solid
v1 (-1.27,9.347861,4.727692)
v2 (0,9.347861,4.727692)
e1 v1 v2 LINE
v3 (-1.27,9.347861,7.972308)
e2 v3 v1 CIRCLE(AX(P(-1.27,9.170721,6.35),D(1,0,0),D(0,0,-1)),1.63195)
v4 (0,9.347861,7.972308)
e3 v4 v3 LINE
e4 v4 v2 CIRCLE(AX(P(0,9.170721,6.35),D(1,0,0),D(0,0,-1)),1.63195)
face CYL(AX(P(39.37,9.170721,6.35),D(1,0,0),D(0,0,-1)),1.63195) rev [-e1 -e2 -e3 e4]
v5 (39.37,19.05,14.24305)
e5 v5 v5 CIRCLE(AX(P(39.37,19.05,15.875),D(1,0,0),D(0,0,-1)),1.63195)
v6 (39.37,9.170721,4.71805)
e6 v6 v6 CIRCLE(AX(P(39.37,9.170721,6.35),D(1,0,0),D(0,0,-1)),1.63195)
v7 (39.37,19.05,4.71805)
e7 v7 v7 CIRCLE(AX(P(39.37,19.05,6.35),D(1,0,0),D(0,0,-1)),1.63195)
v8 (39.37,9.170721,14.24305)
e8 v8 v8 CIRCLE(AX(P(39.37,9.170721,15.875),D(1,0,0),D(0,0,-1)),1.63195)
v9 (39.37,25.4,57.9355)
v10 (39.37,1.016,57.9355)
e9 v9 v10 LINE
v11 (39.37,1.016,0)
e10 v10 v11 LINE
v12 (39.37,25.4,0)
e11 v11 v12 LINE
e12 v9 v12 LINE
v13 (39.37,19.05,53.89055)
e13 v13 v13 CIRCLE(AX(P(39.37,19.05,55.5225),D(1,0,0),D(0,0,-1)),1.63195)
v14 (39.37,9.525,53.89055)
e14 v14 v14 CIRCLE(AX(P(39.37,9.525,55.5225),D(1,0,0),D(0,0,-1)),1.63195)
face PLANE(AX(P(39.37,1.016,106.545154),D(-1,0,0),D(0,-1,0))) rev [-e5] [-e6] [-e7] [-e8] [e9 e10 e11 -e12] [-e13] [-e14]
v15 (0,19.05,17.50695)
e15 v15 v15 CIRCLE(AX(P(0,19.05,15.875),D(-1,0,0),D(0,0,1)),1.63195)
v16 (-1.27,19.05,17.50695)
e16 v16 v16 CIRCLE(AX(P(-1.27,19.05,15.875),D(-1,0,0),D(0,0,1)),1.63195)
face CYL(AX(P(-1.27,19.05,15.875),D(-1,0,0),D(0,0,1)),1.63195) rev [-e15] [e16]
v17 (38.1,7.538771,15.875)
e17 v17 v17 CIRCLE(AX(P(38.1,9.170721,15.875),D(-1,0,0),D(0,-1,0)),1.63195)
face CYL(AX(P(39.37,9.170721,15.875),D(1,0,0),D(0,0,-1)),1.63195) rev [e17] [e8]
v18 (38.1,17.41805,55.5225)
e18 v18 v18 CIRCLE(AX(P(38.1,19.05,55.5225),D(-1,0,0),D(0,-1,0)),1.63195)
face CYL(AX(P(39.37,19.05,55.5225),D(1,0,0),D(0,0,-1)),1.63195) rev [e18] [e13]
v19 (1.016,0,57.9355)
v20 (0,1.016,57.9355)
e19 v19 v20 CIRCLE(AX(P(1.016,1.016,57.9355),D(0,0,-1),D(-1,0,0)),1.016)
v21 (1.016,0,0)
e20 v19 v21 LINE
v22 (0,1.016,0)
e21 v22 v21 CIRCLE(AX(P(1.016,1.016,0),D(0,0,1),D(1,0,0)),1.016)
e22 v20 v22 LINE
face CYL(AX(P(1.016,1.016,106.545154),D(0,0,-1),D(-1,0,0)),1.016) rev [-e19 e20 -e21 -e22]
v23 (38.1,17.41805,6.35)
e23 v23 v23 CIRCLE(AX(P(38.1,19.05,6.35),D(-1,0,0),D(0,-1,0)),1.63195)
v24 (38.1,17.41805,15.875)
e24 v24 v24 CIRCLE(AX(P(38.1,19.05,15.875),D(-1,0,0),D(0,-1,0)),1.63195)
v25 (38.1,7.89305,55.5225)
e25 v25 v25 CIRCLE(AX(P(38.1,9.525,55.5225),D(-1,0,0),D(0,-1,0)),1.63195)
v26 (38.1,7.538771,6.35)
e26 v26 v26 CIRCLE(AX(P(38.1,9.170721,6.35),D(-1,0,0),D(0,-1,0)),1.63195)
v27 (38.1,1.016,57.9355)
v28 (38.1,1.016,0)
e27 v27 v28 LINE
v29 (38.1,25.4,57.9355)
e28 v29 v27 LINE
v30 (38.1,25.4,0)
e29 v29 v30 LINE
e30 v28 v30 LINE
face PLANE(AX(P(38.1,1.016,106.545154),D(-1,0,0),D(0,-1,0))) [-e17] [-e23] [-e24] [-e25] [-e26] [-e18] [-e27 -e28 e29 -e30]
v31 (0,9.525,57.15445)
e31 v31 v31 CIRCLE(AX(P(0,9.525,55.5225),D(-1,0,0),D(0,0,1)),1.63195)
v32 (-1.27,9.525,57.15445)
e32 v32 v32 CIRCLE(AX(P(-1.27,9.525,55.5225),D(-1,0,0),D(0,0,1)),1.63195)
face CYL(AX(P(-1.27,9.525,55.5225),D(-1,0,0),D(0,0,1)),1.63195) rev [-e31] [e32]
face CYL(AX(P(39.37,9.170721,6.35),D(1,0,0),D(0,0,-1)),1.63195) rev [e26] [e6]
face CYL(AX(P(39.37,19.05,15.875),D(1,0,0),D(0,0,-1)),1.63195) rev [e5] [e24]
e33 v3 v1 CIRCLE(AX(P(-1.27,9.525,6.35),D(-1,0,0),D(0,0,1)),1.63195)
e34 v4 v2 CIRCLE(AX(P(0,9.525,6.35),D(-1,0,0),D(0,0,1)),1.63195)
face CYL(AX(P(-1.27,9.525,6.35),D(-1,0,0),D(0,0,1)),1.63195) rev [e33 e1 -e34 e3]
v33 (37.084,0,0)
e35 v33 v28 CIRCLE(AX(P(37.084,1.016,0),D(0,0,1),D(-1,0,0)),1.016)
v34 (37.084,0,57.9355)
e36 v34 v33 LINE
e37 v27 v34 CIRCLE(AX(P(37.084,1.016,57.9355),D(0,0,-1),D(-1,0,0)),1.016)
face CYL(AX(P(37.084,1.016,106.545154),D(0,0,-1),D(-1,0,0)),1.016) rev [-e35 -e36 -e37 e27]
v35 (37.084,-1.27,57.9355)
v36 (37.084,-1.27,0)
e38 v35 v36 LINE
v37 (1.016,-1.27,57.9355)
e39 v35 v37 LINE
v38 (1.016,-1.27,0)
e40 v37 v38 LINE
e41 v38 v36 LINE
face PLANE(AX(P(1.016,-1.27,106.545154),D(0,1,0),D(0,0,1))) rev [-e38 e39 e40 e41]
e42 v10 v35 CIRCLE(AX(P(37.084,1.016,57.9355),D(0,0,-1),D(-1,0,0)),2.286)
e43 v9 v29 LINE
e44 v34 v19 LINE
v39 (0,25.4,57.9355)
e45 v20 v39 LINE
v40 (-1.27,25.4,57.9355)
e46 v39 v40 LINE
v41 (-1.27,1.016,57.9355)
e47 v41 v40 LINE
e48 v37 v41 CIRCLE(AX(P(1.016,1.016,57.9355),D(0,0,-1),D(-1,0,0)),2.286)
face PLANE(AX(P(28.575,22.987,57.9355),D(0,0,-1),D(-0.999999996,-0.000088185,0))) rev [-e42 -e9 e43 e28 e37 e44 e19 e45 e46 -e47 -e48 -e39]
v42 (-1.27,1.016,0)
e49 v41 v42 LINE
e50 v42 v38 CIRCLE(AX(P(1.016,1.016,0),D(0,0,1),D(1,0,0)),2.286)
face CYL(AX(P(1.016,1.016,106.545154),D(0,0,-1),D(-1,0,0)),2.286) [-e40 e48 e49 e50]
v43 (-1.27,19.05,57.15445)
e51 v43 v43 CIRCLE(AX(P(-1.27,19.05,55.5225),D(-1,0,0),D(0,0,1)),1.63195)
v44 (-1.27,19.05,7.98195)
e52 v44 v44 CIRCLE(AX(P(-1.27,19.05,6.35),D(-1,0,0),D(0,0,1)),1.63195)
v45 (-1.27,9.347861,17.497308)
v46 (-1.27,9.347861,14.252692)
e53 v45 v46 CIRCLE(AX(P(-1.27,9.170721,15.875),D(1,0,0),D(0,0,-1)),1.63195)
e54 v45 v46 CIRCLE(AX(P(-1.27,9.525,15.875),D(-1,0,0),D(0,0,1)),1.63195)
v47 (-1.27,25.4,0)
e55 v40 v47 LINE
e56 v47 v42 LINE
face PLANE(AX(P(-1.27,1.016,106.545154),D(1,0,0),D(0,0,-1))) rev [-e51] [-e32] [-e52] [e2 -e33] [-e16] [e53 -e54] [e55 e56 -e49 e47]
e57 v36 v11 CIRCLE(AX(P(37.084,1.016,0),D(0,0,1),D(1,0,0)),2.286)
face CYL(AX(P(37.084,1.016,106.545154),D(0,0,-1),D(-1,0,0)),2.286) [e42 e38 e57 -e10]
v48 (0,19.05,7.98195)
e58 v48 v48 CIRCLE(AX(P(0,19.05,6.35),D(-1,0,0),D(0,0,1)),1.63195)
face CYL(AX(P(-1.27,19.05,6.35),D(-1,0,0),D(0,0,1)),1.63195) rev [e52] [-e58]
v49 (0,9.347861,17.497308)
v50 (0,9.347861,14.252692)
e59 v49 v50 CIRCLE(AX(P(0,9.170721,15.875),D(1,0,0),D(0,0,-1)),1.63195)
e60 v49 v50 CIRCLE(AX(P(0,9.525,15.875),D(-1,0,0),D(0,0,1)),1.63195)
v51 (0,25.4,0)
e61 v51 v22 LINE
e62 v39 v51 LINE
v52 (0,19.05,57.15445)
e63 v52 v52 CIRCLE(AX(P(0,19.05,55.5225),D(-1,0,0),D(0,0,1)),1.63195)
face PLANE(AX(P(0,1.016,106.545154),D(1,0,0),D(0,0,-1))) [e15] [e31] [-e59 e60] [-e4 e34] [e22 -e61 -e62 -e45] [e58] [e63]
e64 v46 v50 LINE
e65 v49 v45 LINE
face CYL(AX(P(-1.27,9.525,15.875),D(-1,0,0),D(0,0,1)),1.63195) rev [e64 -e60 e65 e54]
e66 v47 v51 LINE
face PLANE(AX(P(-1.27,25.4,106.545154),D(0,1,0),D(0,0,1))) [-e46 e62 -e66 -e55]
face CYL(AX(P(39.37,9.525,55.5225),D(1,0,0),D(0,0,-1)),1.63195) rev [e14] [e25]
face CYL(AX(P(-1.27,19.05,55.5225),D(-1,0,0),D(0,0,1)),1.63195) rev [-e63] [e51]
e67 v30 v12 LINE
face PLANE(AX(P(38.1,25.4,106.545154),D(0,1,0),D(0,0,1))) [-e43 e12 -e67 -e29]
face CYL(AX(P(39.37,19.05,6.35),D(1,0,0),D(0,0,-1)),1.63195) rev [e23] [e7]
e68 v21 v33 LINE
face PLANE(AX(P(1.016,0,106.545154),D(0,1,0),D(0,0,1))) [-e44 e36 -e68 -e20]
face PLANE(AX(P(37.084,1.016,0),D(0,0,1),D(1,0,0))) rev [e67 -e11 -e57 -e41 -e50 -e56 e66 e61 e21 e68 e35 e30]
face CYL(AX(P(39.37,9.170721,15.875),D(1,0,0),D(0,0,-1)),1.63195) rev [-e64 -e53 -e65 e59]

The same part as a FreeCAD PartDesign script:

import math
import FreeCAD as App
import Part
import Sketcher

V = App.Vector
Q = App.Units.Quantity

doc = App.newDocument("Part")
body = doc.addObject("PartDesign::Body", "Body")

sketch1 = body.newObject("Sketcher::SketchObject", "Sketch")
sketch1.AttachmentSupport = (doc.getObject("XY_Plane"), [""])
sketch1.MapMode = "FlatFace"
sketch1.addGeometry(Part.LineSegment(V(0, 1.016, 0), V(0, 25.4, 0)), False)
sketch1.addGeometry(Part.LineSegment(V(0, 25.4, 0), V(-1.27, 25.4, 0)), False)
sketch1.addGeometry(Part.LineSegment(V(-1.27, 25.4, 0), V(-1.27, 1.016, 0)), False)
sketch1.addGeometry(Part.ArcOfCircle(Part.Circle(V(1.016, 1.016, 0), V(0, 0, 1), 2.286), math.radians(180), math.radians(270)), False)
sketch1.addGeometry(Part.LineSegment(V(1.016, -1.27, 0), V(37.084, -1.27, 0)), False)
sketch1.addGeometry(Part.ArcOfCircle(Part.Circle(V(37.084, 1.016, 0), V(0, 0, 1), 2.286), math.radians(-90), math.radians(0)), False)
sketch1.addGeometry(Part.LineSegment(V(39.37, 1.016, 0), V(39.37, 25.4, 0)), False)
sketch1.addGeometry(Part.LineSegment(V(39.37, 25.4, 0), V(38.1, 25.4, 0)), False)
sketch1.addGeometry(Part.LineSegment(V(38.1, 25.4, 0), V(38.1, 1.016, 0)), False)
sketch1.addGeometry(Part.ArcOfCircle(Part.Circle(V(37.084, 1.016, 0), V(0, 0, 1), 1.016), math.radians(-90), math.radians(0)), False)
sketch1.addGeometry(Part.LineSegment(V(37.084, 0, 0), V(1.016, 0, 0)), False)
sketch1.addGeometry(Part.ArcOfCircle(Part.Circle(V(1.016, 1.016, 0), V(0, 0, 1), 1.016), math.radians(180), math.radians(270)), False)
sketch1.addConstraint(Sketcher.Constraint("Coincident", 0, 2, 1, 1))
sketch1.addConstraint(Sketcher.Constraint("Coincident", 1, 2, 2, 1))
sketch1.addConstraint(Sketcher.Constraint("Tangent", 2, 2, 3, 1))
sketch1.addConstraint(Sketcher.Constraint("Tangent", 3, 2, 4, 1))
sketch1.addConstraint(Sketcher.Constraint("Tangent", 4, 2, 5, 1))
sketch1.addConstraint(Sketcher.Constraint("Tangent", 5, 2, 6, 1))
sketch1.addConstraint(Sketcher.Constraint("Coincident", 6, 2, 7, 1))
sketch1.addConstraint(Sketcher.Constraint("Coincident", 7, 2, 8, 1))
sketch1.addConstraint(Sketcher.Constraint("Tangent", 8, 2, 9, 2))
sketch1.addConstraint(Sketcher.Constraint("Tangent", 9, 1, 10, 1))
sketch1.addConstraint(Sketcher.Constraint("Tangent", 10, 2, 11, 2))
sketch1.addConstraint(Sketcher.Constraint("Tangent", 11, 1, 0, 1))
sketch1.addConstraint(Sketcher.Constraint("Vertical", 0))
sketch1.addConstraint(Sketcher.Constraint("Horizontal", 1))
sketch1.addConstraint(Sketcher.Constraint("Vertical", 2))
sketch1.addConstraint(Sketcher.Constraint("Horizontal", 4))
sketch1.addConstraint(Sketcher.Constraint("Vertical", 6))
sketch1.addConstraint(Sketcher.Constraint("Horizontal", 7))
sketch1.addConstraint(Sketcher.Constraint("Vertical", 8))
sketch1.addConstraint(Sketcher.Constraint("Horizontal", 10))
sketch1.addConstraint(Sketcher.Constraint("Coincident", 9, 3, 5, 3))
sketch1.addConstraint(Sketcher.Constraint("Coincident", 11, 3, 3, 3))
sketch1.addConstraint(Sketcher.Constraint("Equal", 3, 5))
sketch1.addConstraint(Sketcher.Constraint("PointOnObject", 0, 2, -2))
sketch1.addConstraint(Sketcher.Constraint("PointOnObject", 9, 1, -1))
sketch1.addConstraint(Sketcher.Constraint("Horizontal", 1, 2, 6, 2))
sketch1.addConstraint(Sketcher.Constraint("Radius", 3, Q("0.09 in")))
sketch1.addConstraint(Sketcher.Constraint("Radius", 9, Q("0.04 in")))
sketch1.addConstraint(Sketcher.Constraint("DistanceY", -1, 1, 0, 2, Q("1 in")))
sketch1.addConstraint(Sketcher.Constraint("DistanceX", 4, 1, 4, 2, Q("1.42 in")))
pad1 = body.newObject("PartDesign::Pad", "Pad")
pad1.Profile = sketch1
pad1.Length = 57.9355

sketch2 = body.newObject("Sketcher::SketchObject", "Sketch001")
sketch2.AttachmentSupport = (doc.getObject("YZ_Plane"), [""])
sketch2.MapMode = "FlatFace"
sketch2.AttachmentOffset = App.Placement(V(0, 0, -0.05 * 25.4), App.Rotation())
sketch2.addGeometry(Part.Circle(V(19.05, 6.35, 0), V(0, 0, 1), 1.63195), False)
sketch2.addConstraint(Sketcher.Constraint("Diameter", 0, Q("0.1285 in")))
sketch2.addConstraint(Sketcher.Constraint("DistanceX", -1, 1, 0, 3, Q("0.75 in")))
sketch2.addConstraint(Sketcher.Constraint("DistanceY", -1, 1, 0, 3, Q("0.25 in")))
pocket1 = body.newObject("PartDesign::Pocket", "Pocket")
pocket1.Profile = sketch2
pocket1.Type = "UpToFirst"
pocket1.Reversed = True

sketch3 = body.newObject("Sketcher::SketchObject", "Sketch002")
sketch3.AttachmentSupport = (doc.getObject("YZ_Plane"), [""])
sketch3.MapMode = "FlatFace"
sketch3.AttachmentOffset = App.Placement(V(0, 0, -0.05 * 25.4), App.Rotation())
sketch3.addGeometry(Part.Circle(V(19.05, 15.875, 0), V(0, 0, 1), 1.63195), False)
sketch3.addConstraint(Sketcher.Constraint("Diameter", 0, Q("0.1285 in")))
sketch3.addConstraint(Sketcher.Constraint("DistanceX", -1, 1, 0, 3, Q("0.75 in")))
sketch3.addConstraint(Sketcher.Constraint("DistanceY", -1, 1, 0, 3, Q("0.625 in")))
pocket2 = body.newObject("PartDesign::Pocket", "Pocket001")
pocket2.Profile = sketch3
pocket2.Type = "UpToFirst"
pocket2.Reversed = True

sketch4 = body.newObject("Sketcher::SketchObject", "Sketch003")
sketch4.AttachmentSupport = (doc.getObject("YZ_Plane"), [""])
sketch4.MapMode = "FlatFace"
sketch4.AttachmentOffset = App.Placement(V(0, 0, -0.05 * 25.4), App.Rotation())
sketch4.addGeometry(Part.Circle(V(9.525, 15.875, 0), V(0, 0, 1), 1.63195), False)
sketch4.addConstraint(Sketcher.Constraint("Diameter", 0, Q("0.1285 in")))
sketch4.addConstraint(Sketcher.Constraint("DistanceX", -1, 1, 0, 3, Q("0.375 in")))
sketch4.addConstraint(Sketcher.Constraint("DistanceY", -1, 1, 0, 3, Q("0.625 in")))
pocket3 = body.newObject("PartDesign::Pocket", "Pocket002")
pocket3.Profile = sketch4
pocket3.Type = "UpToFirst"
pocket3.Reversed = True

sketch5 = body.newObject("Sketcher::SketchObject", "Sketch004")
sketch5.AttachmentSupport = (doc.getObject("YZ_Plane"), [""])
sketch5.MapMode = "FlatFace"
sketch5.AttachmentOffset = App.Placement(V(0, 0, -0.05 * 25.4), App.Rotation())
sketch5.addGeometry(Part.Circle(V(9.525, 6.35, 0), V(0, 0, 1), 1.63195), False)
sketch5.addConstraint(Sketcher.Constraint("Diameter", 0, Q("0.1285 in")))
sketch5.addConstraint(Sketcher.Constraint("DistanceY", -1, 1, 0, 3, Q("0.25 in")))
sketch5.addConstraint(Sketcher.Constraint("DistanceX", -1, 1, 0, 3, Q("0.375 in")))
pocket4 = body.newObject("PartDesign::Pocket", "Pocket003")
pocket4.Profile = sketch5
pocket4.Type = "UpToFirst"
pocket4.Reversed = True

sketch6 = body.newObject("Sketcher::SketchObject", "Sketch005")
sketch6.AttachmentSupport = (doc.getObject("YZ_Plane"), [""])
sketch6.MapMode = "FlatFace"
sketch6.AttachmentOffset = App.Placement(V(0, 0, 1.55 * 25.4), App.Rotation())
sketch6.addGeometry(Part.Circle(V(19.05, 6.35, 0), V(0, 0, 1), 1.63195), False)
sketch6.addGeometry(Part.Circle(V(19.05, 15.875, 0), V(0, 0, 1), 1.63195), False)
sketch6.addGeometry(Part.Circle(V(9.170721, 15.875, 0), V(0, 0, 1), 1.63195), False)
sketch6.addGeometry(Part.Circle(V(9.170721, 6.35, 0), V(0, 0, 1), 1.63195), False)
sketch6.addConstraint(Sketcher.Constraint("Equal", 0, 1))
sketch6.addConstraint(Sketcher.Constraint("Equal", 1, 2))
sketch6.addConstraint(Sketcher.Constraint("Equal", 2, 3))
sketch6.addConstraint(Sketcher.Constraint("Horizontal", 1, 3, 2, 3))
sketch6.addConstraint(Sketcher.Constraint("Horizontal", 0, 3, 3, 3))
sketch6.addConstraint(Sketcher.Constraint("Vertical", 0, 3, 1, 3))
sketch6.addConstraint(Sketcher.Constraint("Vertical", 2, 3, 3, 3))
sketch6.addConstraint(Sketcher.Constraint("Diameter", 0, Q("0.1285 in")))
sketch6.addConstraint(Sketcher.Constraint("DistanceX", -1, 1, 0, 3, Q("0.75 in")))
sketch6.addConstraint(Sketcher.Constraint("DistanceY", -1, 1, 0, 3, Q("0.25 in")))
sketch6.addConstraint(Sketcher.Constraint("DistanceY", -1, 1, 1, 3, Q("0.625 in")))
sketch6.addConstraint(Sketcher.Constraint("DistanceX", -1, 1, 2, 3, Q("9.170721 mm")))
doc.recompute()
hole = body.newObject("PartDesign::Hole", "Hole")
hole.Profile = sketch6
hole.ThreadType = "None"
hole.Diameter = Q("0.1285 in")
hole.DepthType = "ThroughAll"

sketch7 = body.newObject("Sketcher::SketchObject", "Sketch006")
sketch7.AttachmentSupport = (doc.getObject("YZ_Plane"), [""])
sketch7.MapMode = "FlatFace"
sketch7.AttachmentOffset = App.Placement(V(0, 0, -0.05 * 25.4), App.Rotation())
sketch7.addGeometry(Part.Circle(V(19.05, 55.5225, 0), V(0, 0, 1), 1.63195), False)
sketch7.addConstraint(Sketcher.Constraint("Diameter", 0, Q("0.1285 in")))
sketch7.addConstraint(Sketcher.Constraint("DistanceX", -1, 1, 0, 3, Q("0.75 in")))
sketch7.addConstraint(Sketcher.Constraint("DistanceY", -1, 1, 0, 3, Q("55.5225 mm")))
pocket5 = body.newObject("PartDesign::Pocket", "Pocket004")
pocket5.Profile = sketch7
pocket5.Type = "UpToFirst"
pocket5.Reversed = True

sketch8 = body.newObject("Sketcher::SketchObject", "Sketch007")
sketch8.AttachmentSupport = (doc.getObject("YZ_Plane"), [""])
sketch8.MapMode = "FlatFace"
sketch8.AttachmentOffset = App.Placement(V(0, 0, -0.05 * 25.4), App.Rotation())
sketch8.addGeometry(Part.Circle(V(9.525, 55.5225, 0), V(0, 0, 1), 1.63195), False)
sketch8.addConstraint(Sketcher.Constraint("Diameter", 0, Q("0.1285 in")))
sketch8.addConstraint(Sketcher.Constraint("DistanceX", -1, 1, 0, 3, Q("0.375 in")))
sketch8.addConstraint(Sketcher.Constraint("DistanceY", -1, 1, 0, 3, Q("55.5225 mm")))
pocket6 = body.newObject("PartDesign::Pocket", "Pocket005")
pocket6.Profile = sketch8
pocket6.Type = "UpToFirst"
pocket6.Reversed = True

sketch9 = body.newObject("Sketcher::SketchObject", "Sketch008")
sketch9.AttachmentSupport = (doc.getObject("YZ_Plane"), [""])
sketch9.MapMode = "FlatFace"
sketch9.AttachmentOffset = App.Placement(V(0, 0, 1.55 * 25.4), App.Rotation())
sketch9.addGeometry(Part.Circle(V(9.525, 55.5225, 0), V(0, 0, 1), 1.63195), False)
sketch9.addGeometry(Part.Circle(V(19.05, 55.5225, 0), V(0, 0, 1), 1.63195), False)
sketch9.addConstraint(Sketcher.Constraint("Equal", 0, 1))
sketch9.addConstraint(Sketcher.Constraint("Horizontal", 0, 3, 1, 3))
sketch9.addConstraint(Sketcher.Constraint("Diameter", 0, Q("0.1285 in")))
sketch9.addConstraint(Sketcher.Constraint("DistanceX", -1, 1, 1, 3, Q("0.75 in")))
sketch9.addConstraint(Sketcher.Constraint("DistanceX", -1, 1, 0, 3, Q("0.375 in")))
sketch9.addConstraint(Sketcher.Constraint("DistanceY", -1, 1, 0, 3, Q("55.5225 mm")))
doc.recompute()
hole2 = body.newObject("PartDesign::Hole", "Hole001")
hole2.Profile = sketch9
hole2.ThreadType = "None"
hole2.Diameter = Q("0.1285 in")
hole2.DepthType = "ThroughAll"

doc.recompute()
